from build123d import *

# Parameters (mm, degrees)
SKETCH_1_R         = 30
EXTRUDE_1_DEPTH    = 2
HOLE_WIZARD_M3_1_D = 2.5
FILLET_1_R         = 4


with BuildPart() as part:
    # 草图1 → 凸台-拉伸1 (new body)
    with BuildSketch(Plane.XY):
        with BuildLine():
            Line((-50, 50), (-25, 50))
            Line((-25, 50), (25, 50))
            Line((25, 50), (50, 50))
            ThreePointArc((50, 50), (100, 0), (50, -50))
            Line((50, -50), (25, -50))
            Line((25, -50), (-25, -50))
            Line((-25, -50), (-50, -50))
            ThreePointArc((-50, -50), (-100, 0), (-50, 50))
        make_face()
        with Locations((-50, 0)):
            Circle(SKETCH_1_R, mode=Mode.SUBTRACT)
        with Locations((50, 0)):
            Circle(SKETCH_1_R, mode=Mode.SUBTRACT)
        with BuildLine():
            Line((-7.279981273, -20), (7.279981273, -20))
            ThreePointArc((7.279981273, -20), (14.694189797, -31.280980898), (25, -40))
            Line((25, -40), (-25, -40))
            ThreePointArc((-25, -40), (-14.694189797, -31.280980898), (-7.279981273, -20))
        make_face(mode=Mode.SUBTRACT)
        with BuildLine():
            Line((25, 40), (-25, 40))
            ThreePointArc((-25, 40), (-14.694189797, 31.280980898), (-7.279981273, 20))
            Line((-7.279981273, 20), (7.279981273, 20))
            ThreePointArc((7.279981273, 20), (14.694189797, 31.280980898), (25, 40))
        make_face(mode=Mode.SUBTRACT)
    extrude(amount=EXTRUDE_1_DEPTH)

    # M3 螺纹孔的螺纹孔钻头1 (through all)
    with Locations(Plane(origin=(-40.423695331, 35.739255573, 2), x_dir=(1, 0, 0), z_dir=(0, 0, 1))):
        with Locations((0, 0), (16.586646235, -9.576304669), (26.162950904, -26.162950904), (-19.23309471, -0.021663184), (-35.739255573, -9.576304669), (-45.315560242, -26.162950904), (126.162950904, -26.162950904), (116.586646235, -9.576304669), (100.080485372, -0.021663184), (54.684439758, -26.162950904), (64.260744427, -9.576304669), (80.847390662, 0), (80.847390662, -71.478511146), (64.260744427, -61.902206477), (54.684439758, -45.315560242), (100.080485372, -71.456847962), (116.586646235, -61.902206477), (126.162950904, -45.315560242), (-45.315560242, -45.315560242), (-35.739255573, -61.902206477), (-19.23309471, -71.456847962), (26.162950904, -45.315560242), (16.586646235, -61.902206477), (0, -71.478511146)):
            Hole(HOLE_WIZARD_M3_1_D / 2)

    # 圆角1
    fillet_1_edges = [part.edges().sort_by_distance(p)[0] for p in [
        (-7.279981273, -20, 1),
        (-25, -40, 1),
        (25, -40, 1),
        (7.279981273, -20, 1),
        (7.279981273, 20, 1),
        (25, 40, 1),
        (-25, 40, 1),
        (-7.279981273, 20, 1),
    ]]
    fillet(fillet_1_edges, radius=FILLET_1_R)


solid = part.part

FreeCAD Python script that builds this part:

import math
import FreeCAD as App
import Part
import Sketcher
from FreeCAD import Vector


def edges_at(feature, points):
    """Names of the edges that pass closest to the given points."""
    edges = feature.Shape.Edges
    near = lambda p: min(range(len(edges)), key=lambda i: edges[i].distToShape(Part.Vertex(*p))[0])
    return sorted({f"Edge{near(p) + 1}" for p in points})

doc = App.newDocument("Part")
body = doc.addObject("PartDesign::Body", "Body")

# Sketch on XY plane
sketch1 = body.newObject("Sketcher::SketchObject", "Sketch")
sketch1.AttachmentSupport = (doc.getObject("XY_Plane"), [""])
sketch1.MapMode = "FlatFace"
sketch1.addGeometry(Part.LineSegment(Vector(50, 50, 0), Vector(-50, 50, 0)), False)
sketch1.addGeometry(Part.ArcOfCircle(Part.Circle(Vector(-50, 0, 0), Vector(0, 0, 1), 50), math.radians(90), math.radians(270)), False)
sketch1.addGeometry(Part.LineSegment(Vector(-50, -50, 0), Vector(50, -50, 0)), False)
sketch1.addGeometry(Part.ArcOfCircle(Part.Circle(Vector(50, 0, 0), Vector(0, 0, 1), 50), math.radians(-90), math.radians(90)), False)
sketch1.addGeometry(Part.LineSegment(Vector(-7, -20, 0), Vector(7, -20, 0)), False)
sketch1.addGeometry(Part.ArcOfCircle(Part.Circle(Vector(50, 0, 0), Vector(0, 0, 1), 47), math.radians(-155), math.radians(-122)), False)
sketch1.addGeometry(Part.LineSegment(Vector(25, -40, 0), Vector(-25, -40, 0)), False)
sketch1.addGeometry(Part.ArcOfCircle(Part.Circle(Vector(-50, 0, 0), Vector(0, 0, 1), 47), math.radians(-58), math.radians(-25)), False)
sketch1.addGeometry(Part.Circle(Vector(50, 0, 0), Vector(0, 0, 1), 30), False)
sketch1.addGeometry(Part.Circle(Vector(-50, 0, 0), Vector(0, 0, 1), 30), False)
sketch1.addGeometry(Part.ArcOfCircle(Part.Circle(Vector(50, 0, 0), Vector(0, 0, 1), 47), math.radians(122), math.radians(155)), False)
sketch1.addGeometry(Part.LineSegment(Vector(7, 20, 0), Vector(-7, 20, 0)), False)
sketch1.addGeometry(Part.ArcOfCircle(Part.Circle(Vector(-50, 0, 0), Vector(0, 0, 1), 47), math.radians(25), math.radians(58)), False)
sketch1.addGeometry(Part.LineSegment(Vector(-25, 40, 0), Vector(25, 40, 0)), False)
sketch1.addConstraint(Sketcher.Constraint("Tangent", 0, 2, 1, 1))
sketch1.addConstraint(Sketcher.Constraint("Tangent", 1, 2, 2, 1))
sketch1.addConstraint(Sketcher.Constraint("Tangent", 2, 2, 3, 1))
sketch1.addConstraint(Sketcher.Constraint("Tangent", 3, 2, 0, 1))
sketch1.addConstraint(Sketcher.Constraint("Coincident", 4, 2, 5, 1))
sketch1.addConstraint(Sketcher.Constraint("Coincident", 5, 2, 6, 1))
sketch1.addConstraint(Sketcher.Constraint("Coincident", 6, 2, 7, 1))
sketch1.addConstraint(Sketcher.Constraint("Coincident", 7, 2, 4, 1))
sketch1.addConstraint(Sketcher.Constraint("Coincident", 10, 2, 11, 1))
sketch1.addConstraint(Sketcher.Constraint("Coincident", 11, 2, 12, 1))
sketch1.addConstraint(Sketcher.Constraint("Coincident", 12, 2, 13, 1))
sketch1.addConstraint(Sketcher.Constraint("Coincident", 13, 2, 10, 1))
sketch1.addConstraint(Sketcher.Constraint("Horizontal", 0))
sketch1.addConstraint(Sketcher.Constraint("Horizontal", 2))
sketch1.addConstraint(Sketcher.Constraint("Horizontal", 4))
sketch1.addConstraint(Sketcher.Constraint("Horizontal", 6))
sketch1.addConstraint(Sketcher.Constraint("Horizontal", 11))
sketch1.addConstraint(Sketcher.Constraint("Horizontal", 13))
sketch1.addConstraint(Sketcher.Constraint("Coincident", 5, 3, 3, 3))
sketch1.addConstraint(Sketcher.Constraint("Coincident", 7, 3, 1, 3))
sketch1.addConstraint(Sketcher.Constraint("Coincident", 8, 3, 3, 3))
sketch1.addConstraint(Sketcher.Constraint("Coincident", 9, 3, 1, 3))
sketch1.addConstraint(Sketcher.Constraint("Coincident", 10, 3, 3, 3))
sketch1.addConstraint(Sketcher.Constraint("Coincident", 12, 3, 1, 3))
sketch1.addConstraint(Sketcher.Constraint("Equal", 5, 7))
sketch1.addConstraint(Sketcher.Constraint("Equal", 8, 9))
sketch1.addConstraint(Sketcher.Constraint("Equal", 7, 10))
sketch1.addConstraint(Sketcher.Constraint("Equal", 10, 12))
sketch1.addConstraint(Sketcher.Constraint("Symmetric", 1, 3, 3, 3, -1, 1))
sketch1.addConstraint(Sketcher.Constraint("Vertical", 4, 2, 10, 2))
sketch1.addConstraint(Sketcher.Constraint("Vertical", 6, 2, 12, 2))
sketch1.addConstraint(Sketcher.Constraint("Diameter", 8, 60.0))
sketch1.addConstraint(Sketcher.Constraint("Radius", 1, 50.0))
sketch1.addConstraint(Sketcher.Constraint("DistanceX", 0, 2, 0, 1, 100.0))
sketch1.addConstraint(Sketcher.Constraint("DistanceX", 6, 2, 6, 1, 50.0))
sketch1.addConstraint(Sketcher.Constraint("DistanceY", 4, 2, -1, 1, 20.0))
sketch1.addConstraint(Sketcher.Constraint("DistanceY", 5, 2, -1, 1, 40.0))
pad1 = body.newObject("PartDesign::Pad", "Pad")
pad1.Profile = sketch1
pad1.Length = 2

# Sketch on XY plane
sketch2 = body.newObject("Sketcher::SketchObject", "Sketch001")
sketch2.AttachmentSupport = (doc.getObject("XY_Plane"), [""])
sketch2.MapMode = "FlatFace"
sketch2.AttachmentOffset = App.Placement(Vector(0, 0, 2), App.Rotation())
sketch2.addGeometry(Part.Circle(Vector(-40.4, 35.7, 0), Vector(0, 0, 1), 1.2), False)
sketch2.addGeometry(Part.Circle(Vector(-23.8, 26.2, 0), Vector(0, 0, 1), 1.2), False)
sketch2.addGeometry(Part.Circle(Vector(-14.3, 9.6, 0), Vector(0, 0, 1), 1.2), False)
sketch2.addGeometry(Part.Circle(Vector(-59.7, 35.7, 0), Vector(0, 0, 1), 1.2), False)
sketch2.addGeometry(Part.Circle(Vector(-76.2, 26.2, 0), Vector(0, 0, 1), 1.2), False)
sketch2.addGeometry(Part.Circle(Vector(-85.7, 9.6, 0), Vector(0, 0, 1), 1.2), False)
sketch2.addGeometry(Part.Circle(Vector(85.7, 9.6, 0), Vector(0, 0, 1), 1.2), False)
sketch2.addGeometry(Part.Circle(Vector(76.2, 26.2, 0), Vector(0, 0, 1), 1.2), False)
sketch2.addGeometry(Part.Circle(Vector(59.7, 35.7, 0), Vector(0, 0, 1), 1.2), False)
sketch2.addGeometry(Part.Circle(Vector(14.3, 9.6, 0), Vector(0, 0, 1), 1.2), False)
sketch2.addGeometry(Part.Circle(Vector(23.8, 26.2, 0), Vector(0, 0, 1), 1.2), False)
sketch2.addGeometry(Part.Circle(Vector(40.4, 35.7, 0), Vector(0, 0, 1), 1.2), False)
sketch2.addGeometry(Part.Circle(Vector(40.4, -35.7, 0), Vector(0, 0, 1), 1.2), False)
sketch2.addGeometry(Part.Circle(Vector(23.8, -26.2, 0), Vector(0, 0, 1), 1.2), False)
sketch2.addGeometry(Part.Circle(Vector(14.3, -9.6, 0), Vector(0, 0, 1), 1.2), False)
sketch2.addGeometry(Part.Circle(Vector(59.7, -35.7, 0), Vector(0, 0, 1), 1.2), False)
sketch2.addGeometry(Part.Circle(Vector(76.2, -26.2, 0), Vector(0, 0, 1), 1.2), False)
sketch2.addGeometry(Part.Circle(Vector(85.7, -9.6, 0), Vector(0, 0, 1), 1.2), False)
sketch2.addGeometry(Part.Circle(Vector(-85.7, -9.6, 0), Vector(0, 0, 1), 1.2), False)
sketch2.addGeometry(Part.Circle(Vector(-76.2, -26.2, 0), Vector(0, 0, 1), 1.2), False)
sketch2.addGeometry(Part.Circle(Vector(-59.7, -35.7, 0), Vector(0, 0, 1), 1.2), False)
sketch2.addGeometry(Part.Circle(Vector(-14.3, -9.6, 0), Vector(0, 0, 1), 1.2), False)
sketch2.addGeometry(Part.Circle(Vector(-23.8, -26.2, 0), Vector(0, 0, 1), 1.2), False)
sketch2.addGeometry(Part.Circle(Vector(-40.4, -35.7, 0), Vector(0, 0, 1), 1.2), False)
sketch2.addConstraint(Sketcher.Constraint("Equal", 0, 1))
sketch2.addConstraint(Sketcher.Constraint("Equal", 1, 2))
sketch2.addConstraint(Sketcher.Constraint("Equal", 2, 3))
sketch2.addConstraint(Sketcher.Constraint("Equal", 3, 4))
sketch2.addConstraint(Sketcher.Constraint("Equal", 4, 5))
sketch2.addConstraint(Sketcher.Constraint("Equal", 5, 6))
sketch2.addConstraint(Sketcher.Constraint("Equal", 6, 7))
sketch2.addConstraint(Sketcher.Constraint("Equal", 7, 8))
sketch2.addConstraint(Sketcher.Constraint("Equal", 8, 9))
sketch2.addConstraint(Sketcher.Constraint("Equal", 9, 10))
sketch2.addConstraint(Sketcher.Constraint("Equal", 10, 11))
sketch2.addConstraint(Sketcher.Constraint("Equal", 11, 12))
sketch2.addConstraint(Sketcher.Constraint("Equal", 12, 13))
sketch2.addConstraint(Sketcher.Constraint("Equal", 13, 14))
sketch2.addConstraint(Sketcher.Constraint("Equal", 14, 15))
sketch2.addConstraint(Sketcher.Constraint("Equal", 15, 16))
sketch2.addConstraint(Sketcher.Constraint("Equal", 16, 17))
sketch2.addConstraint(Sketcher.Constraint("Equal", 17, 18))
sketch2.addConstraint(Sketcher.Constraint("Equal", 18, 19))
sketch2.addConstraint(Sketcher.Constraint("Equal", 19, 20))
sketch2.addConstraint(Sketcher.Constraint("Equal", 20, 21))
sketch2.addConstraint(Sketcher.Constraint("Equal", 21, 22))
sketch2.addConstraint(Sketcher.Constraint("Equal", 22, 23))
sketch2.addConstraint(Sketcher.Constraint("Symmetric", 0, 3, 12, 3, -1, 1))
sketch2.addConstraint(Sketcher.Constraint("Symmetric", 1, 3, 13, 3, -1, 1))
sketch2.addConstraint(Sketcher.Constraint("Symmetric", 2, 3, 14, 3, -1, 1))
sketch2.addConstraint(Sketcher.Constraint("Symmetric", 3, 3, 15, 3, -1, 1))
sketch2.addConstraint(Sketcher.Constraint("Symmetric", 4, 3, 16, 3, -1, 1))
sketch2.addConstraint(Sketcher.Constraint("Symmetric", 5, 3, 17, 3, -1, 1))
sketch2.addConstraint(Sketcher.Constraint("Symmetric", 6, 3, 18, 3, -1, 1))
sketch2.addConstraint(Sketcher.Constraint("Symmetric", 7, 3, 19, 3, -1, 1))
sketch2.addConstraint(Sketcher.Constraint("Symmetric", 8, 3, 20, 3, -1, 1))
sketch2.addConstraint(Sketcher.Constraint("Symmetric", 9, 3, 21, 3, -1, 1))
sketch2.addConstraint(Sketcher.Constraint("Symmetric", 10, 3, 22, 3, -1, 1))
sketch2.addConstraint(Sketcher.Constraint("Symmetric", 11, 3, 23, 3, -1, 1))
sketch2.addConstraint(Sketcher.Constraint("Symmetric", 5, 3, 6, 3, -2))
sketch2.addConstraint(Sketcher.Constraint("Symmetric", 4, 3, 7, 3, -2))
sketch2.addConstraint(Sketcher.Constraint("Symmetric", 3, 3, 8, 3, -2))
sketch2.addConstraint(Sketcher.Constraint("Symmetric", 2, 3, 9, 3, -2))
sketch2.addConstraint(Sketcher.Constraint("Symmetric", 1, 3, 10, 3, -2))
sketch2.addConstraint(Sketcher.Constraint("Symmetric", 0, 3, 11, 3, -2))
sketch2.addConstraint(Sketcher.Constraint("Horizontal", 1, 3, 4, 3))
sketch2.addConstraint(Sketcher.Constraint("Horizontal", 2, 3, 5, 3))
sketch2.addConstraint(Sketcher.Constraint("Diameter", 0, 2.5))
sketch2.addConstraint(Sketcher.Constraint("DistanceX", 2, 3, 6, 3, 100.0))
sketch2.addConstraint(Sketcher.Constraint("DistanceX", 1, 3, 7, 3, 100.0))
sketch2.addConstraint(Sketcher.Constraint("DistanceX", 4, 3, 1, 3, 52.325902))
sketch2.addConstraint(Sketcher.Constraint("DistanceY", 13, 3, 10, 3, 52.325902))
sketch2.addConstraint(Sketcher.Constraint("DistanceX", 3, 3, -1, 1, 59.65679))
sketch2.addConstraint(Sketcher.Constraint("DistanceX", 0, 3, 2, 3, 26.162951))
sketch2.addConstraint(Sketcher.Constraint("DistanceY", 2, 3, 0, 3, 26.162951))
sketch2.addConstraint(Sketcher.Constraint("DistanceY", 1, 3, 3, 3, 9.554641))
sketch2.addConstraint(Sketcher.Constraint("DistanceX", 5, 3, 0, 3, 45.31556))
sketch2.addConstraint(Sketcher.Constraint("DistanceY", 12, 3, 9, 3, 45.31556))
doc.recompute()
hole = body.newObject("PartDesign::Hole", "Hole")
hole.Profile = sketch2
hole.ThreadType = "None"
hole.Diameter = 2.5
hole.DepthType = "ThroughAll"
doc.recompute()

fillet = body.newObject("PartDesign::Fillet", "Fillet")
fillet.Base = (hole, edges_at(hole, [
    (-7.28, -20, 1),
    (-25, -40, 1),
    (25, -40, 1),
    (7.28, -20, 1),
    (7.28, 20, 1),
    (25, 40, 1),
    (-25, 40, 1),
    (-7.28, 20, 1),
]))
fillet.Radius = 4

doc.recompute()
